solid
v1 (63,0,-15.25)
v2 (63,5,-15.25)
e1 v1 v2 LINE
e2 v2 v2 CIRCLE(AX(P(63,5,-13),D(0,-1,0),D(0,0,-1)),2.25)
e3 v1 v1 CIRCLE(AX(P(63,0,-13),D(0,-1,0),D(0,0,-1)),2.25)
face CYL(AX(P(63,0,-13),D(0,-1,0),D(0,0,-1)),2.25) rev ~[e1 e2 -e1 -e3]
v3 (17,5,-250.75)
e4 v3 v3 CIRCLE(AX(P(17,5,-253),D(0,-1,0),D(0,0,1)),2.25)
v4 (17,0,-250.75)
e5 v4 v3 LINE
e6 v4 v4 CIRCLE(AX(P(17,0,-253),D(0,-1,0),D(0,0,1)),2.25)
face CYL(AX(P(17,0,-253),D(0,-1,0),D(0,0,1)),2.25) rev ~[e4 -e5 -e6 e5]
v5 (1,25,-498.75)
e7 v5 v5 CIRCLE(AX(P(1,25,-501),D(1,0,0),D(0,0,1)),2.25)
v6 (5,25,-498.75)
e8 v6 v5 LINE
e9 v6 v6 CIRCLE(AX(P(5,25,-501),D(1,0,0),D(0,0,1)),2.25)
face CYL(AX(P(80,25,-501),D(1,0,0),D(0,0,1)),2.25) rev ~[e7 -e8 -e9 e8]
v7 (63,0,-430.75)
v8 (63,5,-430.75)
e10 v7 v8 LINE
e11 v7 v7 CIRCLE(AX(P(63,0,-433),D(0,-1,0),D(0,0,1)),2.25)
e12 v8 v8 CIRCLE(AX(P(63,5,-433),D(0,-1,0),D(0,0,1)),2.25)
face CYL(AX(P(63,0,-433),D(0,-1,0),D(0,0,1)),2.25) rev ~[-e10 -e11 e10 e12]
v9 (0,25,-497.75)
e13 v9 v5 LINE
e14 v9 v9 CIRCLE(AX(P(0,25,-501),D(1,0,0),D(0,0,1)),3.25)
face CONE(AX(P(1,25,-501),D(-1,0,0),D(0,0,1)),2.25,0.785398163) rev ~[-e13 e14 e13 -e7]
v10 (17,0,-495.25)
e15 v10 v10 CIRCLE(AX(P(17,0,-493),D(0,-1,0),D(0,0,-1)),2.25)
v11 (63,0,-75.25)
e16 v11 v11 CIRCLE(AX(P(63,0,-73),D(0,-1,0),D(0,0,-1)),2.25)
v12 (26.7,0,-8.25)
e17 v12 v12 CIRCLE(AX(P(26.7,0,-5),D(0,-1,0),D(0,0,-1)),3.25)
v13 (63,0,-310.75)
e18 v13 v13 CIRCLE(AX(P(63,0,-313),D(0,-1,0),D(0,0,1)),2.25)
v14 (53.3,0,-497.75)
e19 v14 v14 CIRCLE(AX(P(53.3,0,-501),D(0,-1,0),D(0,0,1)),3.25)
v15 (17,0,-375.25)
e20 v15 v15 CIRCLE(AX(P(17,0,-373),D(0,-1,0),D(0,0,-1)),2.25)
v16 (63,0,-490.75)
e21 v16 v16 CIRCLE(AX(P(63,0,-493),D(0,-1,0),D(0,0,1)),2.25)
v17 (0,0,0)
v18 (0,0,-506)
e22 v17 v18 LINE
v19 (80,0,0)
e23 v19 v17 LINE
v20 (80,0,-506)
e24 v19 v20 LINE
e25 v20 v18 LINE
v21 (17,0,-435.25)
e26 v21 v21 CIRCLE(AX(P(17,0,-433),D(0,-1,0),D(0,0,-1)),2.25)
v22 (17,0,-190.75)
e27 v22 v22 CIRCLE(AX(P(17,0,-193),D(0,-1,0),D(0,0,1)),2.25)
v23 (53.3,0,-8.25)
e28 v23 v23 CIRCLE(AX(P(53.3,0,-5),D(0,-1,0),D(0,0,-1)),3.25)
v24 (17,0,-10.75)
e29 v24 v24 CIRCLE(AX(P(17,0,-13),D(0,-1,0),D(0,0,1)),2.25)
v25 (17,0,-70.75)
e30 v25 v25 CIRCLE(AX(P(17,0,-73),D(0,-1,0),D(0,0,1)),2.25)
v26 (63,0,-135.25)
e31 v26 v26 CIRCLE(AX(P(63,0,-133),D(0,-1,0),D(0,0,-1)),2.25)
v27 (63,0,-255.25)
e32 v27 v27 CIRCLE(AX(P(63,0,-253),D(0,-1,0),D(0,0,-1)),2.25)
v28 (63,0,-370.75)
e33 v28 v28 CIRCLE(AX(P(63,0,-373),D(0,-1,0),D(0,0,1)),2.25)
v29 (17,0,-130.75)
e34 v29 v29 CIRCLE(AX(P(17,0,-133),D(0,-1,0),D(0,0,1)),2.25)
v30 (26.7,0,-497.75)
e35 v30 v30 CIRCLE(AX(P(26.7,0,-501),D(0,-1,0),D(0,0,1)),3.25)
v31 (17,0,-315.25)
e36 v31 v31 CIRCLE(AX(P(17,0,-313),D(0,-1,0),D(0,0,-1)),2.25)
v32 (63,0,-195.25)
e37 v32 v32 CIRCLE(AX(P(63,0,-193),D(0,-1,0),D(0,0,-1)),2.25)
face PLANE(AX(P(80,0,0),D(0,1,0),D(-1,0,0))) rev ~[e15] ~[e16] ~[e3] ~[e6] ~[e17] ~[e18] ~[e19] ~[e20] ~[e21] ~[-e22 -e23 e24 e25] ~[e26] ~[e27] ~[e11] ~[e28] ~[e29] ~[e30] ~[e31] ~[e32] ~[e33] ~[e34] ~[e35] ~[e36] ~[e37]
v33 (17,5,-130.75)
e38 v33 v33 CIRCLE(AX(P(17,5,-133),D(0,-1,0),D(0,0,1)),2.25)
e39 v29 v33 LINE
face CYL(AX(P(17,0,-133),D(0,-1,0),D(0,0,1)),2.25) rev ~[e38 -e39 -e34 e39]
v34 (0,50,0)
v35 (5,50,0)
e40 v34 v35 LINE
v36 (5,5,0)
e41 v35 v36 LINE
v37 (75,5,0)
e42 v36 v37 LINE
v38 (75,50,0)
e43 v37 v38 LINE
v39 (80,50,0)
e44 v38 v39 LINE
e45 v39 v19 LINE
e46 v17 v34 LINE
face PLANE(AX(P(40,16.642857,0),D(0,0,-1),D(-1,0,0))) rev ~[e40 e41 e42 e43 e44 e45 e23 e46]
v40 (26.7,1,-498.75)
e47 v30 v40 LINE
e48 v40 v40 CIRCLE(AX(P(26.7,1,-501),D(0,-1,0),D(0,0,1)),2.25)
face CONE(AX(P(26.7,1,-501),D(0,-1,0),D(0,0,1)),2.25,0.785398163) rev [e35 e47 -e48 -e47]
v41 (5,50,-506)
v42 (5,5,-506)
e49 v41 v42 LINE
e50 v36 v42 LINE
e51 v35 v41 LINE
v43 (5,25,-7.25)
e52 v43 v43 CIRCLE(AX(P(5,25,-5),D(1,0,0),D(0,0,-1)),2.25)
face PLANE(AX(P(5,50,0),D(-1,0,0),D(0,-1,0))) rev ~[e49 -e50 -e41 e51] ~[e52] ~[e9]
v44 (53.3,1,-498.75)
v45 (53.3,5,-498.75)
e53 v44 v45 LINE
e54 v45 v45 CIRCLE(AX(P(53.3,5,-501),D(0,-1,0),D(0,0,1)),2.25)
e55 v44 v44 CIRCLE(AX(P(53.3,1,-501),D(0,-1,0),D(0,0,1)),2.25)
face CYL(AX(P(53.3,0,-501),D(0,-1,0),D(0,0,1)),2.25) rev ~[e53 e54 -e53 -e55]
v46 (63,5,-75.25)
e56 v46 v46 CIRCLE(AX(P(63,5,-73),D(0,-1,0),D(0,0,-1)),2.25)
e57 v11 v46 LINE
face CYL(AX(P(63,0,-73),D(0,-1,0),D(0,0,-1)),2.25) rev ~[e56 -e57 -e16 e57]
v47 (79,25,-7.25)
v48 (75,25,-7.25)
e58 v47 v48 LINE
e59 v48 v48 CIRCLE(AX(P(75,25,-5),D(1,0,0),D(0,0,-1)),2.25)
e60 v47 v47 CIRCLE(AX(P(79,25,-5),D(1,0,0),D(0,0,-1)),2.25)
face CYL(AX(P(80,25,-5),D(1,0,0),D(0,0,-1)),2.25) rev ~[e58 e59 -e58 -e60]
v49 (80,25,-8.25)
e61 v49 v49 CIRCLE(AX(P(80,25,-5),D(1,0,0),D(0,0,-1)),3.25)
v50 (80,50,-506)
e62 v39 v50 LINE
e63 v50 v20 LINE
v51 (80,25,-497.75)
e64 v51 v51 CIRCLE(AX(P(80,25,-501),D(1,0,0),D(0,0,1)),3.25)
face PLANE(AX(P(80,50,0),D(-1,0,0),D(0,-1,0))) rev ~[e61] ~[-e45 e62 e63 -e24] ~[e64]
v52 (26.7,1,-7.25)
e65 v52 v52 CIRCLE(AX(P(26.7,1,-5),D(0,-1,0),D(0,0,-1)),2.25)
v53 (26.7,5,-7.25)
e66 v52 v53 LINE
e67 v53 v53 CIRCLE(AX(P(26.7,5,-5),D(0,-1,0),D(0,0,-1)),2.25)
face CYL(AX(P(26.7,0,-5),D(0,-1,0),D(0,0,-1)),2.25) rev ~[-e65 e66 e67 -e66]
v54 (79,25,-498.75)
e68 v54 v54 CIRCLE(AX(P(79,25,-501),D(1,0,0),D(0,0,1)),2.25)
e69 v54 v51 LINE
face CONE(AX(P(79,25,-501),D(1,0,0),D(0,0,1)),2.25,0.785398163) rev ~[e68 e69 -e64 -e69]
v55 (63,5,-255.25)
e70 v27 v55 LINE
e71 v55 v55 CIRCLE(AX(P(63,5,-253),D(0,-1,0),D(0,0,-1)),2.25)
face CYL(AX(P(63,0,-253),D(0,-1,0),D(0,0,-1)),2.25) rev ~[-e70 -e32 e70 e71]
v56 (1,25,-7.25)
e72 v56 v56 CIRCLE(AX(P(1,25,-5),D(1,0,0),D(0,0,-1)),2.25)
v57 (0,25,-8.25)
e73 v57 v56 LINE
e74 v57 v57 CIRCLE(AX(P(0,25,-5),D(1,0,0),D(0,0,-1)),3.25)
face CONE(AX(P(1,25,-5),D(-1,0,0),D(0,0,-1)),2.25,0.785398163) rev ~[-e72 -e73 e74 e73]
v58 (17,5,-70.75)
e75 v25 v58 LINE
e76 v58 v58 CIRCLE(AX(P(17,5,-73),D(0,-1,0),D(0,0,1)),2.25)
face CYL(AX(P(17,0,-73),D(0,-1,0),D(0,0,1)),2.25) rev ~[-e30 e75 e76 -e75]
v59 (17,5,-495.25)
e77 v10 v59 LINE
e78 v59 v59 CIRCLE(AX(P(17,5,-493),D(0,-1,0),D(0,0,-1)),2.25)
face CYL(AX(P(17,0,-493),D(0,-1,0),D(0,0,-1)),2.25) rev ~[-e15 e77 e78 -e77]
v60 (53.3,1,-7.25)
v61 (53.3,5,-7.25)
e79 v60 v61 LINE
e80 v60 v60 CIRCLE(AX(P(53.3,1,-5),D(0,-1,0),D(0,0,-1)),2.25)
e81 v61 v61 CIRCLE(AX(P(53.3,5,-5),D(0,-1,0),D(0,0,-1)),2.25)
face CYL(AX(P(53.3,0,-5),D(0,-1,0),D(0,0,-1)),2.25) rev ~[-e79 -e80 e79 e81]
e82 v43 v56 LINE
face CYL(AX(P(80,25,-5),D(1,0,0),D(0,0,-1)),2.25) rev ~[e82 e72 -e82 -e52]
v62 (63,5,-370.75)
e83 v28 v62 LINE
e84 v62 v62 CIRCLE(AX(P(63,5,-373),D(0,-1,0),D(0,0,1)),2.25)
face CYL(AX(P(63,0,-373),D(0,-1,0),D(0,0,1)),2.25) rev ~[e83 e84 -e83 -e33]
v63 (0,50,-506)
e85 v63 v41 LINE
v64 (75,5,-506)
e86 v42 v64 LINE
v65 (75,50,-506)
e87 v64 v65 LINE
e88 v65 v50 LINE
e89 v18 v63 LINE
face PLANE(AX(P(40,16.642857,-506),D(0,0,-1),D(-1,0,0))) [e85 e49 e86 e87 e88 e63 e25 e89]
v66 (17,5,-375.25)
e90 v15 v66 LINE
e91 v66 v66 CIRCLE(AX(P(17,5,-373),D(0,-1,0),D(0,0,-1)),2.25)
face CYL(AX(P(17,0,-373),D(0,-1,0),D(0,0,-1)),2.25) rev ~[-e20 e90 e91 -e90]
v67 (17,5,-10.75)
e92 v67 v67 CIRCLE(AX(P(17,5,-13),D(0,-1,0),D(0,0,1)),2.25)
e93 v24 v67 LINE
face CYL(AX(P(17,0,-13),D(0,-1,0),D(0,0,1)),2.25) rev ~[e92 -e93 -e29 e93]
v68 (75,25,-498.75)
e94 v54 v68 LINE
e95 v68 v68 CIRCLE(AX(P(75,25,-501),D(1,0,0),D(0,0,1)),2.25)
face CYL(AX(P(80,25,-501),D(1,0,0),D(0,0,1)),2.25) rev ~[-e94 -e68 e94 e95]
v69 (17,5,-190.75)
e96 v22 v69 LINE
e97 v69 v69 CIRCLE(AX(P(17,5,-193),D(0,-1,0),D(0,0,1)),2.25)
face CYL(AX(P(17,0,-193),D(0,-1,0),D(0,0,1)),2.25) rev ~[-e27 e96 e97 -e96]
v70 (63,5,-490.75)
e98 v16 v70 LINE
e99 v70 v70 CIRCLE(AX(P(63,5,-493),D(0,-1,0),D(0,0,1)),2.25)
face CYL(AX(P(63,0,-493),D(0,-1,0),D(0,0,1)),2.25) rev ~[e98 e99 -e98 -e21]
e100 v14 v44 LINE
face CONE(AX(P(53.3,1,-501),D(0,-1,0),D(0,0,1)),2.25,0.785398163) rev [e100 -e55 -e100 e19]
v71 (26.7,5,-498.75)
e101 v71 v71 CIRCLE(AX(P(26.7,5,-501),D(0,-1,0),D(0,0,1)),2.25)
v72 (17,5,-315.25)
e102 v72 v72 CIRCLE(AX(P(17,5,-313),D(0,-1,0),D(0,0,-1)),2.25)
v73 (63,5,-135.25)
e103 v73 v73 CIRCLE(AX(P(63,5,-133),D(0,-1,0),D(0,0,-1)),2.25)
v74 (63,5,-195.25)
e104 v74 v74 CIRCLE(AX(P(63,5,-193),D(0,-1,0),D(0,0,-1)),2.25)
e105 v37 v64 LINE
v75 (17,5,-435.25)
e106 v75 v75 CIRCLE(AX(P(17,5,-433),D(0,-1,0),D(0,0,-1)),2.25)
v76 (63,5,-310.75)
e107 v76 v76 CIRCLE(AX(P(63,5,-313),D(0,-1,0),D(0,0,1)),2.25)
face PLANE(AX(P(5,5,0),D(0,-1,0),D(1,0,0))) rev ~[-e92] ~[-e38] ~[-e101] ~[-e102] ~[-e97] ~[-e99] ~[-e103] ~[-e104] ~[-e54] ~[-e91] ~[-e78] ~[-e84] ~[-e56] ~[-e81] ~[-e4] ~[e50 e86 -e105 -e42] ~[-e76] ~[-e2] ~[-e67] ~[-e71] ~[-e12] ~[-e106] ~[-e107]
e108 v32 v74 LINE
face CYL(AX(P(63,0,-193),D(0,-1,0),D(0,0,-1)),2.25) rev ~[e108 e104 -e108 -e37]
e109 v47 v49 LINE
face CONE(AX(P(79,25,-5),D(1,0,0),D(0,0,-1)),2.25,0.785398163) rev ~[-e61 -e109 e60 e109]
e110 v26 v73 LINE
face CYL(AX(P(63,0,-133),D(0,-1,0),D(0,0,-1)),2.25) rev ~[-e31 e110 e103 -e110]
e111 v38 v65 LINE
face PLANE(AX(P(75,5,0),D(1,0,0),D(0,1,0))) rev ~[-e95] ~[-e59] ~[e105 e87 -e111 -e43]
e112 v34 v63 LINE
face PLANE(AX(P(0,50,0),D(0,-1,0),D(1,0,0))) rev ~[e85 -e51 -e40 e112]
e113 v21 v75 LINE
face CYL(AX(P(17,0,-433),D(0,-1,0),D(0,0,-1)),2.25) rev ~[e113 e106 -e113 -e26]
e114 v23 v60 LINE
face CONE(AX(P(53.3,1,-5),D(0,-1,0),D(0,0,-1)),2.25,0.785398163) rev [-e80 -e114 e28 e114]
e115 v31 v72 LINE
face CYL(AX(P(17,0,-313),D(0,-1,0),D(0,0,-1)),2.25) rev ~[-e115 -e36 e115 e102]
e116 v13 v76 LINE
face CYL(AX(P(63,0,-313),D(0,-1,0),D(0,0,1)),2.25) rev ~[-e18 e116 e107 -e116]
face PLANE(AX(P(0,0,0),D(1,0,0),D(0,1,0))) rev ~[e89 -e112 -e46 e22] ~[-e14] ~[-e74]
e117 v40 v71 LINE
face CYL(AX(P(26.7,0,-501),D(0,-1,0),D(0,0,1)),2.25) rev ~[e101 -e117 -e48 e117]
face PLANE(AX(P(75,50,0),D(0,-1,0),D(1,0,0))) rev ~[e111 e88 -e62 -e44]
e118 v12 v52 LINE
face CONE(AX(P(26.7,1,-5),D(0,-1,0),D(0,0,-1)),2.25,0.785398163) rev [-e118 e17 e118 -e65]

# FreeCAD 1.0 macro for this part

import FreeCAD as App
import Part
import Sketcher
from FreeCAD import Vector


def edges_at(feature, points):
    """Names of the edges that pass closest to the given points."""
    edges = feature.Shape.Edges
    near = lambda p: min(range(len(edges)), key=lambda i: edges[i].distToShape(Part.Vertex(*p))[0])
    return sorted({f"Edge{near(p) + 1}" for p in points})

doc = App.newDocument("Part")
body = doc.addObject("PartDesign::Body", "Body")

sketch1 = body.newObject("Sketcher::SketchObject", "Sketch")
sketch1.AttachmentSupport = (doc.getObject("XY_Plane"), [""])
sketch1.MapMode = "FlatFace"
sketch1.addGeometry(Part.LineSegment(Vector(75, 50, 0), Vector(75, 5, 0)), False)
sketch1.addGeometry(Part.LineSegment(Vector(75, 5, 0), Vector(5, 5, 0)), False)
sketch1.addGeometry(Part.LineSegment(Vector(5, 5, 0), Vector(5, 50, 0)), False)
sketch1.addGeometry(Part.LineSegment(Vector(5, 50, 0), Vector(0, 50, 0)), False)
sketch1.addGeometry(Part.LineSegment(Vector(0, 50, 0), Vector(0, 0, 0)), False)
sketch1.addGeometry(Part.LineSegment(Vector(0, 0, 0), Vector(80, 0, 0)), False)
sketch1.addGeometry(Part.LineSegment(Vector(80, 0, 0), Vector(80, 50, 0)), False)
sketch1.addGeometry(Part.LineSegment(Vector(80, 50, 0), Vector(75, 50, 0)), False)
sketch1.addConstraint(Sketcher.Constraint("Coincident", 0, 2, 1, 1))
sketch1.addConstraint(Sketcher.Constraint("Coincident", 1, 2, 2, 1))
sketch1.addConstraint(Sketcher.Constraint("Coincident", 2, 2, 3, 1))
sketch1.addConstraint(Sketcher.Constraint("Coincident", 3, 2, 4, 1))
sketch1.addConstraint(Sketcher.Constraint("Coincident", 4, 2, 5, 1))
sketch1.addConstraint(Sketcher.Constraint("Coincident", 5, 2, 6, 1))
sketch1.addConstraint(Sketcher.Constraint("Coincident", 6, 2, 7, 1))
sketch1.addConstraint(Sketcher.Constraint("Coincident", 7, 2, 0, 1))
sketch1.addConstraint(Sketcher.Constraint("Vertical", 0))
sketch1.addConstraint(Sketcher.Constraint("Horizontal", 1))
sketch1.addConstraint(Sketcher.Constraint("Vertical", 2))
sketch1.addConstraint(Sketcher.Constraint("Horizontal", 3))
sketch1.addConstraint(Sketcher.Constraint("Vertical", 4))
sketch1.addConstraint(Sketcher.Constraint("Horizontal", 5))
sketch1.addConstraint(Sketcher.Constraint("Vertical", 6))
sketch1.addConstraint(Sketcher.Constraint("Horizontal", 7))
sketch1.addConstraint(Sketcher.Constraint("Coincident", 4, 2, -1, 1))
sketch1.addConstraint(Sketcher.Constraint("Horizontal", 3, 2, 6, 2))
sketch1.addConstraint(Sketcher.Constraint("Equal", 3, 7))
sketch1.addConstraint(Sketcher.Constraint("DistanceX", 1, 2, 1, 1, 70.0))
sketch1.addConstraint(Sketcher.Constraint("DistanceX", 3, 2, 3, 1, 5.0))
sketch1.addConstraint(Sketcher.Constraint("DistanceY", 0, 2, 0, 1, 45.0))
sketch1.addConstraint(Sketcher.Constraint("DistanceY", 4, 2, 4, 1, 50.0))
pad1 = body.newObject("PartDesign::Pad", "Pad")
pad1.Profile = sketch1
pad1.Length = 506
pad1.Reversed = True

sketch2 = body.newObject("Sketcher::SketchObject", "Sketch001")
sketch2.AttachmentSupport = (doc.getObject("YZ_Plane"), [""])
sketch2.MapMode = "FlatFace"
sketch2.AttachmentOffset = App.Placement(Vector(0, 0, 80), App.Rotation())
sketch2.addGeometry(Part.Circle(Vector(25, -5, 0), Vector(0, 0, 1), 2.2), False)
sketch2.addGeometry(Part.Circle(Vector(25, -501, 0), Vector(0, 0, 1), 2.2), False)
sketch2.addConstraint(Sketcher.Constraint("Equal", 0, 1))
sketch2.addConstraint(Sketcher.Constraint("Vertical", 0, 3, 1, 3))
sketch2.addConstraint(Sketcher.Constraint("Diameter", 0, 4.5))
sketch2.addConstraint(Sketcher.Constraint("DistanceX", -1, 1, 0, 3, 25.0))
sketch2.addConstraint(Sketcher.Constraint("DistanceY", 0, 3, -1, 1, 5.0))
sketch2.addConstraint(Sketcher.Constraint("DistanceY", 1, 3, -1, 1, 501.0))
pocket1 = body.newObject("PartDesign::Pocket", "Pocket")
pocket1.Profile = sketch2
pocket1.Type = "ThroughAll"
doc.recompute()

chamfer = body.newObject("PartDesign::Chamfer", "Chamfer")
chamfer.Base = (pocket1, edges_at(pocket1, [
    (0, 25, -2.75),
    (80, 25, -2.75),
    (0, 25, -503.25),
    (80, 25, -503.25),
]))
chamfer.Size = 1

sketch3 = body.newObject("Sketcher::SketchObject", "Sketch002")
sketch3.AttachmentSupport = (doc.getObject("XZ_Plane"), [""])
sketch3.MapMode = "FlatFace"
sketch3.addGeometry(Part.Circle(Vector(63, -253, 0), Vector(0, 0, 1), 2.2), False)
sketch3.addGeometry(Part.Circle(Vector(63, -193, 0), Vector(0, 0, 1), 2.2), False)
sketch3.addGeometry(Part.Circle(Vector(63, -133, 0), Vector(0, 0, 1), 2.2), False)
sketch3.addGeometry(Part.Circle(Vector(63, -73, 0), Vector(0, 0, 1), 2.2), False)
sketch3.addGeometry(Part.Circle(Vector(63, -13, 0), Vector(0, 0, 1), 2.2), False)
sketch3.addGeometry(Part.Circle(Vector(63, -493, 0), Vector(0, 0, 1), 2.2), False)
sketch3.addGeometry(Part.Circle(Vector(63, -433, 0), Vector(0, 0, 1), 2.2), False)
sketch3.addGeometry(Part.Circle(Vector(63, -373, 0), Vector(0, 0, 1), 2.2), False)
sketch3.addGeometry(Part.Circle(Vector(63, -313, 0), Vector(0, 0, 1), 2.2), False)
sketch3.addGeometry(Part.Circle(Vector(17, -313, 0), Vector(0, 0, 1), 2.2), False)
sketch3.addGeometry(Part.Circle(Vector(17, -373, 0), Vector(0, 0, 1), 2.2), False)
sketch3.addGeometry(Part.Circle(Vector(17, -433, 0), Vector(0, 0, 1), 2.2), False)
sketch3.addGeometry(Part.Circle(Vector(17, -493, 0), Vector(0, 0, 1), 2.2), False)
sketch3.addGeometry(Part.Circle(Vector(17, -13, 0), Vector(0, 0, 1), 2.2), False)
sketch3.addGeometry(Part.Circle(Vector(17, -73, 0), Vector(0, 0, 1), 2.2), False)
sketch3.addGeometry(Part.Circle(Vector(17, -133, 0), Vector(0, 0, 1), 2.2), False)
sketch3.addGeometry(Part.Circle(Vector(17, -193, 0), Vector(0, 0, 1), 2.2), False)
sketch3.addGeometry(Part.Circle(Vector(17, -253, 0), Vector(0, 0, 1), 2.2), False)
sketch3.addConstraint(Sketcher.Constraint("Equal", 0, 1))
sketch3.addConstraint(Sketcher.Constraint("Equal", 1, 2))
sketch3.addConstraint(Sketcher.Constraint("Equal", 2, 3))
sketch3.addConstraint(Sketcher.Constraint("Equal", 3, 4))
sketch3.addConstraint(Sketcher.Constraint("Equal", 4, 5))
sketch3.addConstraint(Sketcher.Constraint("Equal", 5, 6))
sketch3.addConstraint(Sketcher.Constraint("Equal", 6, 7))
sketch3.addConstraint(Sketcher.Constraint("Equal", 7, 8))
sketch3.addConstraint(Sketcher.Constraint("Equal", 8, 9))
sketch3.addConstraint(Sketcher.Constraint("Equal", 9, 10))
sketch3.addConstraint(Sketcher.Constraint("Equal", 10, 11))
sketch3.addConstraint(Sketcher.Constraint("Equal", 11, 12))
sketch3.addConstraint(Sketcher.Constraint("Equal", 12, 13))
sketch3.addConstraint(Sketcher.Constraint("Equal", 13, 14))
sketch3.addConstraint(Sketcher.Constraint("Equal", 14, 15))
sketch3.addConstraint(Sketcher.Constraint("Equal", 15, 16))
sketch3.addConstraint(Sketcher.Constraint("Equal", 16, 17))
sketch3.addConstraint(Sketcher.Constraint("Horizontal", 8, 3, 9, 3))
sketch3.addConstraint(Sketcher.Constraint("Horizontal", 7, 3, 10, 3))
sketch3.addConstraint(Sketcher.Constraint("Horizontal", 6, 3, 11, 3))
sketch3.addConstraint(Sketcher.Constraint("Horizontal", 5, 3, 12, 3))
sketch3.addConstraint(Sketcher.Constraint("Horizontal", 4, 3, 13, 3))
sketch3.addConstraint(Sketcher.Constraint("Horizontal", 3, 3, 14, 3))
sketch3.addConstraint(Sketcher.Constraint("Horizontal", 2, 3, 15, 3))
sketch3.addConstraint(Sketcher.Constraint("Horizontal", 1, 3, 16, 3))
sketch3.addConstraint(Sketcher.Constraint("Horizontal", 0, 3, 17, 3))
sketch3.addConstraint(Sketcher.Constraint("Vertical", 0, 3, 1, 3))
sketch3.addConstraint(Sketcher.Constraint("Vertical", 1, 3, 2, 3))
sketch3.addConstraint(Sketcher.Constraint("Vertical", 2, 3, 3, 3))
sketch3.addConstraint(Sketcher.Constraint("Vertical", 3, 3, 4, 3))
sketch3.addConstraint(Sketcher.Constraint("Vertical", 4, 3, 5, 3))
sketch3.addConstraint(Sketcher.Constraint("Vertical", 5, 3, 6, 3))
sketch3.addConstraint(Sketcher.Constraint("Vertical", 6, 3, 7, 3))
sketch3.addConstraint(Sketcher.Constraint("Vertical", 7, 3, 8, 3))
sketch3.addConstraint(Sketcher.Constraint("Vertical", 9, 3, 10, 3))
sketch3.addConstraint(Sketcher.Constraint("Vertical", 10, 3, 11, 3))
sketch3.addConstraint(Sketcher.Constraint("Vertical", 11, 3, 12, 3))
sketch3.addConstraint(Sketcher.Constraint("Vertical", 12, 3, 13, 3))
sketch3.addConstraint(Sketcher.Constraint("Vertical", 13, 3, 14, 3))
sketch3.addConstraint(Sketcher.Constraint("Vertical", 14, 3, 15, 3))
sketch3.addConstraint(Sketcher.Constraint("Vertical", 15, 3, 16, 3))
sketch3.addConstraint(Sketcher.Constraint("Vertical", 16, 3, 17, 3))
sketch3.addConstraint(Sketcher.Constraint("Diameter", 0, 4.5))
sketch3.addConstraint(Sketcher.Constraint("DistanceX", -1, 1, 0, 3, 63.0))
sketch3.addConstraint(Sketcher.Constraint("DistanceY", 0, 3, -1, 1, 253.0))
sketch3.addConstraint(Sketcher.Constraint("DistanceY", 1, 3, -1, 1, 193.0))
sketch3.addConstraint(Sketcher.Constraint("DistanceY", 2, 3, -1, 1, 133.0))
sketch3.addConstraint(Sketcher.Constraint("DistanceY", 3, 3, -1, 1, 73.0))
sketch3.addConstraint(Sketcher.Constraint("DistanceY", 4, 3, -1, 1, 13.0))
sketch3.addConstraint(Sketcher.Constraint("DistanceY", 5, 3, -1, 1, 493.0))
sketch3.addConstraint(Sketcher.Constraint("DistanceY", 6, 3, -1, 1, 433.0))
sketch3.addConstraint(Sketcher.Constraint("DistanceY", 7, 3, -1, 1, 373.0))
sketch3.addConstraint(Sketcher.Constraint("DistanceY", 8, 3, -1, 1, 313.0))
sketch3.addConstraint(Sketcher.Constraint("DistanceX", -1, 1, 9, 3, 17.0))
pocket2 = body.newObject("PartDesign::Pocket", "Pocket001")
pocket2.Profile = sketch3
pocket2.Type = "ThroughAll"

sketch4 = body.newObject("Sketcher::SketchObject", "Sketch003")
sketch4.AttachmentSupport = (doc.getObject("XZ_Plane"), [""])
sketch4.MapMode = "FlatFace"
sketch4.addGeometry(Part.Circle(Vector(26.7, -5, 0), Vector(0, 0, 1), 2.2), False)
sketch4.addGeometry(Part.Circle(Vector(53.3, -5, 0), Vector(0, 0, 1), 2.2), False)
sketch4.addGeometry(Part.Circle(Vector(53.3, -501, 0), Vector(0, 0, 1), 2.2), False)
sketch4.addGeometry(Part.Circle(Vector(26.7, -501, 0), Vector(0, 0, 1), 2.2), False)
sketch4.addConstraint(Sketcher.Constraint("Equal", 0, 1))
sketch4.addConstraint(Sketcher.Constraint("Equal", 1, 2))
sketch4.addConstraint(Sketcher.Constraint("Equal", 2, 3))
sketch4.addConstraint(Sketcher.Constraint("Horizontal", 0, 3, 1, 3))
sketch4.addConstraint(Sketcher.Constraint("Horizontal", 2, 3, 3, 3))
sketch4.addConstraint(Sketcher.Constraint("Vertical", 1, 3, 2, 3))
sketch4.addConstraint(Sketcher.Constraint("Vertical", 0, 3, 3, 3))
sketch4.addConstraint(Sketcher.Constraint("Diameter", 0, 4.5))
sketch4.addConstraint(Sketcher.Constraint("DistanceY", 0, 3, -1, 1, 5.0))
sketch4.addConstraint(Sketcher.Constraint("DistanceY", 2, 3, -1, 1, 501.0))
sketch4.addConstraint(Sketcher.Constraint("DistanceX", -1, 1, 0, 3, 26.7))
sketch4.addConstraint(Sketcher.Constraint("DistanceX", -1, 1, 1, 3, 53.3))
pocket3 = body.newObject("PartDesign::Pocket", "Pocket002")
pocket3.Profile = sketch4
pocket3.Type = "ThroughAll"
doc.recompute()

chamfer2 = body.newObject("PartDesign::Chamfer", "Chamfer001")
chamfer2.Base = (pocket3, edges_at(pocket3, [
    (26.7, 0, -2.75),
    (53.3, 0, -2.75),
    (53.3, 0, -503.25),
    (26.7, 0, -503.25),
]))
chamfer2.Size = 1

doc.recompute()
